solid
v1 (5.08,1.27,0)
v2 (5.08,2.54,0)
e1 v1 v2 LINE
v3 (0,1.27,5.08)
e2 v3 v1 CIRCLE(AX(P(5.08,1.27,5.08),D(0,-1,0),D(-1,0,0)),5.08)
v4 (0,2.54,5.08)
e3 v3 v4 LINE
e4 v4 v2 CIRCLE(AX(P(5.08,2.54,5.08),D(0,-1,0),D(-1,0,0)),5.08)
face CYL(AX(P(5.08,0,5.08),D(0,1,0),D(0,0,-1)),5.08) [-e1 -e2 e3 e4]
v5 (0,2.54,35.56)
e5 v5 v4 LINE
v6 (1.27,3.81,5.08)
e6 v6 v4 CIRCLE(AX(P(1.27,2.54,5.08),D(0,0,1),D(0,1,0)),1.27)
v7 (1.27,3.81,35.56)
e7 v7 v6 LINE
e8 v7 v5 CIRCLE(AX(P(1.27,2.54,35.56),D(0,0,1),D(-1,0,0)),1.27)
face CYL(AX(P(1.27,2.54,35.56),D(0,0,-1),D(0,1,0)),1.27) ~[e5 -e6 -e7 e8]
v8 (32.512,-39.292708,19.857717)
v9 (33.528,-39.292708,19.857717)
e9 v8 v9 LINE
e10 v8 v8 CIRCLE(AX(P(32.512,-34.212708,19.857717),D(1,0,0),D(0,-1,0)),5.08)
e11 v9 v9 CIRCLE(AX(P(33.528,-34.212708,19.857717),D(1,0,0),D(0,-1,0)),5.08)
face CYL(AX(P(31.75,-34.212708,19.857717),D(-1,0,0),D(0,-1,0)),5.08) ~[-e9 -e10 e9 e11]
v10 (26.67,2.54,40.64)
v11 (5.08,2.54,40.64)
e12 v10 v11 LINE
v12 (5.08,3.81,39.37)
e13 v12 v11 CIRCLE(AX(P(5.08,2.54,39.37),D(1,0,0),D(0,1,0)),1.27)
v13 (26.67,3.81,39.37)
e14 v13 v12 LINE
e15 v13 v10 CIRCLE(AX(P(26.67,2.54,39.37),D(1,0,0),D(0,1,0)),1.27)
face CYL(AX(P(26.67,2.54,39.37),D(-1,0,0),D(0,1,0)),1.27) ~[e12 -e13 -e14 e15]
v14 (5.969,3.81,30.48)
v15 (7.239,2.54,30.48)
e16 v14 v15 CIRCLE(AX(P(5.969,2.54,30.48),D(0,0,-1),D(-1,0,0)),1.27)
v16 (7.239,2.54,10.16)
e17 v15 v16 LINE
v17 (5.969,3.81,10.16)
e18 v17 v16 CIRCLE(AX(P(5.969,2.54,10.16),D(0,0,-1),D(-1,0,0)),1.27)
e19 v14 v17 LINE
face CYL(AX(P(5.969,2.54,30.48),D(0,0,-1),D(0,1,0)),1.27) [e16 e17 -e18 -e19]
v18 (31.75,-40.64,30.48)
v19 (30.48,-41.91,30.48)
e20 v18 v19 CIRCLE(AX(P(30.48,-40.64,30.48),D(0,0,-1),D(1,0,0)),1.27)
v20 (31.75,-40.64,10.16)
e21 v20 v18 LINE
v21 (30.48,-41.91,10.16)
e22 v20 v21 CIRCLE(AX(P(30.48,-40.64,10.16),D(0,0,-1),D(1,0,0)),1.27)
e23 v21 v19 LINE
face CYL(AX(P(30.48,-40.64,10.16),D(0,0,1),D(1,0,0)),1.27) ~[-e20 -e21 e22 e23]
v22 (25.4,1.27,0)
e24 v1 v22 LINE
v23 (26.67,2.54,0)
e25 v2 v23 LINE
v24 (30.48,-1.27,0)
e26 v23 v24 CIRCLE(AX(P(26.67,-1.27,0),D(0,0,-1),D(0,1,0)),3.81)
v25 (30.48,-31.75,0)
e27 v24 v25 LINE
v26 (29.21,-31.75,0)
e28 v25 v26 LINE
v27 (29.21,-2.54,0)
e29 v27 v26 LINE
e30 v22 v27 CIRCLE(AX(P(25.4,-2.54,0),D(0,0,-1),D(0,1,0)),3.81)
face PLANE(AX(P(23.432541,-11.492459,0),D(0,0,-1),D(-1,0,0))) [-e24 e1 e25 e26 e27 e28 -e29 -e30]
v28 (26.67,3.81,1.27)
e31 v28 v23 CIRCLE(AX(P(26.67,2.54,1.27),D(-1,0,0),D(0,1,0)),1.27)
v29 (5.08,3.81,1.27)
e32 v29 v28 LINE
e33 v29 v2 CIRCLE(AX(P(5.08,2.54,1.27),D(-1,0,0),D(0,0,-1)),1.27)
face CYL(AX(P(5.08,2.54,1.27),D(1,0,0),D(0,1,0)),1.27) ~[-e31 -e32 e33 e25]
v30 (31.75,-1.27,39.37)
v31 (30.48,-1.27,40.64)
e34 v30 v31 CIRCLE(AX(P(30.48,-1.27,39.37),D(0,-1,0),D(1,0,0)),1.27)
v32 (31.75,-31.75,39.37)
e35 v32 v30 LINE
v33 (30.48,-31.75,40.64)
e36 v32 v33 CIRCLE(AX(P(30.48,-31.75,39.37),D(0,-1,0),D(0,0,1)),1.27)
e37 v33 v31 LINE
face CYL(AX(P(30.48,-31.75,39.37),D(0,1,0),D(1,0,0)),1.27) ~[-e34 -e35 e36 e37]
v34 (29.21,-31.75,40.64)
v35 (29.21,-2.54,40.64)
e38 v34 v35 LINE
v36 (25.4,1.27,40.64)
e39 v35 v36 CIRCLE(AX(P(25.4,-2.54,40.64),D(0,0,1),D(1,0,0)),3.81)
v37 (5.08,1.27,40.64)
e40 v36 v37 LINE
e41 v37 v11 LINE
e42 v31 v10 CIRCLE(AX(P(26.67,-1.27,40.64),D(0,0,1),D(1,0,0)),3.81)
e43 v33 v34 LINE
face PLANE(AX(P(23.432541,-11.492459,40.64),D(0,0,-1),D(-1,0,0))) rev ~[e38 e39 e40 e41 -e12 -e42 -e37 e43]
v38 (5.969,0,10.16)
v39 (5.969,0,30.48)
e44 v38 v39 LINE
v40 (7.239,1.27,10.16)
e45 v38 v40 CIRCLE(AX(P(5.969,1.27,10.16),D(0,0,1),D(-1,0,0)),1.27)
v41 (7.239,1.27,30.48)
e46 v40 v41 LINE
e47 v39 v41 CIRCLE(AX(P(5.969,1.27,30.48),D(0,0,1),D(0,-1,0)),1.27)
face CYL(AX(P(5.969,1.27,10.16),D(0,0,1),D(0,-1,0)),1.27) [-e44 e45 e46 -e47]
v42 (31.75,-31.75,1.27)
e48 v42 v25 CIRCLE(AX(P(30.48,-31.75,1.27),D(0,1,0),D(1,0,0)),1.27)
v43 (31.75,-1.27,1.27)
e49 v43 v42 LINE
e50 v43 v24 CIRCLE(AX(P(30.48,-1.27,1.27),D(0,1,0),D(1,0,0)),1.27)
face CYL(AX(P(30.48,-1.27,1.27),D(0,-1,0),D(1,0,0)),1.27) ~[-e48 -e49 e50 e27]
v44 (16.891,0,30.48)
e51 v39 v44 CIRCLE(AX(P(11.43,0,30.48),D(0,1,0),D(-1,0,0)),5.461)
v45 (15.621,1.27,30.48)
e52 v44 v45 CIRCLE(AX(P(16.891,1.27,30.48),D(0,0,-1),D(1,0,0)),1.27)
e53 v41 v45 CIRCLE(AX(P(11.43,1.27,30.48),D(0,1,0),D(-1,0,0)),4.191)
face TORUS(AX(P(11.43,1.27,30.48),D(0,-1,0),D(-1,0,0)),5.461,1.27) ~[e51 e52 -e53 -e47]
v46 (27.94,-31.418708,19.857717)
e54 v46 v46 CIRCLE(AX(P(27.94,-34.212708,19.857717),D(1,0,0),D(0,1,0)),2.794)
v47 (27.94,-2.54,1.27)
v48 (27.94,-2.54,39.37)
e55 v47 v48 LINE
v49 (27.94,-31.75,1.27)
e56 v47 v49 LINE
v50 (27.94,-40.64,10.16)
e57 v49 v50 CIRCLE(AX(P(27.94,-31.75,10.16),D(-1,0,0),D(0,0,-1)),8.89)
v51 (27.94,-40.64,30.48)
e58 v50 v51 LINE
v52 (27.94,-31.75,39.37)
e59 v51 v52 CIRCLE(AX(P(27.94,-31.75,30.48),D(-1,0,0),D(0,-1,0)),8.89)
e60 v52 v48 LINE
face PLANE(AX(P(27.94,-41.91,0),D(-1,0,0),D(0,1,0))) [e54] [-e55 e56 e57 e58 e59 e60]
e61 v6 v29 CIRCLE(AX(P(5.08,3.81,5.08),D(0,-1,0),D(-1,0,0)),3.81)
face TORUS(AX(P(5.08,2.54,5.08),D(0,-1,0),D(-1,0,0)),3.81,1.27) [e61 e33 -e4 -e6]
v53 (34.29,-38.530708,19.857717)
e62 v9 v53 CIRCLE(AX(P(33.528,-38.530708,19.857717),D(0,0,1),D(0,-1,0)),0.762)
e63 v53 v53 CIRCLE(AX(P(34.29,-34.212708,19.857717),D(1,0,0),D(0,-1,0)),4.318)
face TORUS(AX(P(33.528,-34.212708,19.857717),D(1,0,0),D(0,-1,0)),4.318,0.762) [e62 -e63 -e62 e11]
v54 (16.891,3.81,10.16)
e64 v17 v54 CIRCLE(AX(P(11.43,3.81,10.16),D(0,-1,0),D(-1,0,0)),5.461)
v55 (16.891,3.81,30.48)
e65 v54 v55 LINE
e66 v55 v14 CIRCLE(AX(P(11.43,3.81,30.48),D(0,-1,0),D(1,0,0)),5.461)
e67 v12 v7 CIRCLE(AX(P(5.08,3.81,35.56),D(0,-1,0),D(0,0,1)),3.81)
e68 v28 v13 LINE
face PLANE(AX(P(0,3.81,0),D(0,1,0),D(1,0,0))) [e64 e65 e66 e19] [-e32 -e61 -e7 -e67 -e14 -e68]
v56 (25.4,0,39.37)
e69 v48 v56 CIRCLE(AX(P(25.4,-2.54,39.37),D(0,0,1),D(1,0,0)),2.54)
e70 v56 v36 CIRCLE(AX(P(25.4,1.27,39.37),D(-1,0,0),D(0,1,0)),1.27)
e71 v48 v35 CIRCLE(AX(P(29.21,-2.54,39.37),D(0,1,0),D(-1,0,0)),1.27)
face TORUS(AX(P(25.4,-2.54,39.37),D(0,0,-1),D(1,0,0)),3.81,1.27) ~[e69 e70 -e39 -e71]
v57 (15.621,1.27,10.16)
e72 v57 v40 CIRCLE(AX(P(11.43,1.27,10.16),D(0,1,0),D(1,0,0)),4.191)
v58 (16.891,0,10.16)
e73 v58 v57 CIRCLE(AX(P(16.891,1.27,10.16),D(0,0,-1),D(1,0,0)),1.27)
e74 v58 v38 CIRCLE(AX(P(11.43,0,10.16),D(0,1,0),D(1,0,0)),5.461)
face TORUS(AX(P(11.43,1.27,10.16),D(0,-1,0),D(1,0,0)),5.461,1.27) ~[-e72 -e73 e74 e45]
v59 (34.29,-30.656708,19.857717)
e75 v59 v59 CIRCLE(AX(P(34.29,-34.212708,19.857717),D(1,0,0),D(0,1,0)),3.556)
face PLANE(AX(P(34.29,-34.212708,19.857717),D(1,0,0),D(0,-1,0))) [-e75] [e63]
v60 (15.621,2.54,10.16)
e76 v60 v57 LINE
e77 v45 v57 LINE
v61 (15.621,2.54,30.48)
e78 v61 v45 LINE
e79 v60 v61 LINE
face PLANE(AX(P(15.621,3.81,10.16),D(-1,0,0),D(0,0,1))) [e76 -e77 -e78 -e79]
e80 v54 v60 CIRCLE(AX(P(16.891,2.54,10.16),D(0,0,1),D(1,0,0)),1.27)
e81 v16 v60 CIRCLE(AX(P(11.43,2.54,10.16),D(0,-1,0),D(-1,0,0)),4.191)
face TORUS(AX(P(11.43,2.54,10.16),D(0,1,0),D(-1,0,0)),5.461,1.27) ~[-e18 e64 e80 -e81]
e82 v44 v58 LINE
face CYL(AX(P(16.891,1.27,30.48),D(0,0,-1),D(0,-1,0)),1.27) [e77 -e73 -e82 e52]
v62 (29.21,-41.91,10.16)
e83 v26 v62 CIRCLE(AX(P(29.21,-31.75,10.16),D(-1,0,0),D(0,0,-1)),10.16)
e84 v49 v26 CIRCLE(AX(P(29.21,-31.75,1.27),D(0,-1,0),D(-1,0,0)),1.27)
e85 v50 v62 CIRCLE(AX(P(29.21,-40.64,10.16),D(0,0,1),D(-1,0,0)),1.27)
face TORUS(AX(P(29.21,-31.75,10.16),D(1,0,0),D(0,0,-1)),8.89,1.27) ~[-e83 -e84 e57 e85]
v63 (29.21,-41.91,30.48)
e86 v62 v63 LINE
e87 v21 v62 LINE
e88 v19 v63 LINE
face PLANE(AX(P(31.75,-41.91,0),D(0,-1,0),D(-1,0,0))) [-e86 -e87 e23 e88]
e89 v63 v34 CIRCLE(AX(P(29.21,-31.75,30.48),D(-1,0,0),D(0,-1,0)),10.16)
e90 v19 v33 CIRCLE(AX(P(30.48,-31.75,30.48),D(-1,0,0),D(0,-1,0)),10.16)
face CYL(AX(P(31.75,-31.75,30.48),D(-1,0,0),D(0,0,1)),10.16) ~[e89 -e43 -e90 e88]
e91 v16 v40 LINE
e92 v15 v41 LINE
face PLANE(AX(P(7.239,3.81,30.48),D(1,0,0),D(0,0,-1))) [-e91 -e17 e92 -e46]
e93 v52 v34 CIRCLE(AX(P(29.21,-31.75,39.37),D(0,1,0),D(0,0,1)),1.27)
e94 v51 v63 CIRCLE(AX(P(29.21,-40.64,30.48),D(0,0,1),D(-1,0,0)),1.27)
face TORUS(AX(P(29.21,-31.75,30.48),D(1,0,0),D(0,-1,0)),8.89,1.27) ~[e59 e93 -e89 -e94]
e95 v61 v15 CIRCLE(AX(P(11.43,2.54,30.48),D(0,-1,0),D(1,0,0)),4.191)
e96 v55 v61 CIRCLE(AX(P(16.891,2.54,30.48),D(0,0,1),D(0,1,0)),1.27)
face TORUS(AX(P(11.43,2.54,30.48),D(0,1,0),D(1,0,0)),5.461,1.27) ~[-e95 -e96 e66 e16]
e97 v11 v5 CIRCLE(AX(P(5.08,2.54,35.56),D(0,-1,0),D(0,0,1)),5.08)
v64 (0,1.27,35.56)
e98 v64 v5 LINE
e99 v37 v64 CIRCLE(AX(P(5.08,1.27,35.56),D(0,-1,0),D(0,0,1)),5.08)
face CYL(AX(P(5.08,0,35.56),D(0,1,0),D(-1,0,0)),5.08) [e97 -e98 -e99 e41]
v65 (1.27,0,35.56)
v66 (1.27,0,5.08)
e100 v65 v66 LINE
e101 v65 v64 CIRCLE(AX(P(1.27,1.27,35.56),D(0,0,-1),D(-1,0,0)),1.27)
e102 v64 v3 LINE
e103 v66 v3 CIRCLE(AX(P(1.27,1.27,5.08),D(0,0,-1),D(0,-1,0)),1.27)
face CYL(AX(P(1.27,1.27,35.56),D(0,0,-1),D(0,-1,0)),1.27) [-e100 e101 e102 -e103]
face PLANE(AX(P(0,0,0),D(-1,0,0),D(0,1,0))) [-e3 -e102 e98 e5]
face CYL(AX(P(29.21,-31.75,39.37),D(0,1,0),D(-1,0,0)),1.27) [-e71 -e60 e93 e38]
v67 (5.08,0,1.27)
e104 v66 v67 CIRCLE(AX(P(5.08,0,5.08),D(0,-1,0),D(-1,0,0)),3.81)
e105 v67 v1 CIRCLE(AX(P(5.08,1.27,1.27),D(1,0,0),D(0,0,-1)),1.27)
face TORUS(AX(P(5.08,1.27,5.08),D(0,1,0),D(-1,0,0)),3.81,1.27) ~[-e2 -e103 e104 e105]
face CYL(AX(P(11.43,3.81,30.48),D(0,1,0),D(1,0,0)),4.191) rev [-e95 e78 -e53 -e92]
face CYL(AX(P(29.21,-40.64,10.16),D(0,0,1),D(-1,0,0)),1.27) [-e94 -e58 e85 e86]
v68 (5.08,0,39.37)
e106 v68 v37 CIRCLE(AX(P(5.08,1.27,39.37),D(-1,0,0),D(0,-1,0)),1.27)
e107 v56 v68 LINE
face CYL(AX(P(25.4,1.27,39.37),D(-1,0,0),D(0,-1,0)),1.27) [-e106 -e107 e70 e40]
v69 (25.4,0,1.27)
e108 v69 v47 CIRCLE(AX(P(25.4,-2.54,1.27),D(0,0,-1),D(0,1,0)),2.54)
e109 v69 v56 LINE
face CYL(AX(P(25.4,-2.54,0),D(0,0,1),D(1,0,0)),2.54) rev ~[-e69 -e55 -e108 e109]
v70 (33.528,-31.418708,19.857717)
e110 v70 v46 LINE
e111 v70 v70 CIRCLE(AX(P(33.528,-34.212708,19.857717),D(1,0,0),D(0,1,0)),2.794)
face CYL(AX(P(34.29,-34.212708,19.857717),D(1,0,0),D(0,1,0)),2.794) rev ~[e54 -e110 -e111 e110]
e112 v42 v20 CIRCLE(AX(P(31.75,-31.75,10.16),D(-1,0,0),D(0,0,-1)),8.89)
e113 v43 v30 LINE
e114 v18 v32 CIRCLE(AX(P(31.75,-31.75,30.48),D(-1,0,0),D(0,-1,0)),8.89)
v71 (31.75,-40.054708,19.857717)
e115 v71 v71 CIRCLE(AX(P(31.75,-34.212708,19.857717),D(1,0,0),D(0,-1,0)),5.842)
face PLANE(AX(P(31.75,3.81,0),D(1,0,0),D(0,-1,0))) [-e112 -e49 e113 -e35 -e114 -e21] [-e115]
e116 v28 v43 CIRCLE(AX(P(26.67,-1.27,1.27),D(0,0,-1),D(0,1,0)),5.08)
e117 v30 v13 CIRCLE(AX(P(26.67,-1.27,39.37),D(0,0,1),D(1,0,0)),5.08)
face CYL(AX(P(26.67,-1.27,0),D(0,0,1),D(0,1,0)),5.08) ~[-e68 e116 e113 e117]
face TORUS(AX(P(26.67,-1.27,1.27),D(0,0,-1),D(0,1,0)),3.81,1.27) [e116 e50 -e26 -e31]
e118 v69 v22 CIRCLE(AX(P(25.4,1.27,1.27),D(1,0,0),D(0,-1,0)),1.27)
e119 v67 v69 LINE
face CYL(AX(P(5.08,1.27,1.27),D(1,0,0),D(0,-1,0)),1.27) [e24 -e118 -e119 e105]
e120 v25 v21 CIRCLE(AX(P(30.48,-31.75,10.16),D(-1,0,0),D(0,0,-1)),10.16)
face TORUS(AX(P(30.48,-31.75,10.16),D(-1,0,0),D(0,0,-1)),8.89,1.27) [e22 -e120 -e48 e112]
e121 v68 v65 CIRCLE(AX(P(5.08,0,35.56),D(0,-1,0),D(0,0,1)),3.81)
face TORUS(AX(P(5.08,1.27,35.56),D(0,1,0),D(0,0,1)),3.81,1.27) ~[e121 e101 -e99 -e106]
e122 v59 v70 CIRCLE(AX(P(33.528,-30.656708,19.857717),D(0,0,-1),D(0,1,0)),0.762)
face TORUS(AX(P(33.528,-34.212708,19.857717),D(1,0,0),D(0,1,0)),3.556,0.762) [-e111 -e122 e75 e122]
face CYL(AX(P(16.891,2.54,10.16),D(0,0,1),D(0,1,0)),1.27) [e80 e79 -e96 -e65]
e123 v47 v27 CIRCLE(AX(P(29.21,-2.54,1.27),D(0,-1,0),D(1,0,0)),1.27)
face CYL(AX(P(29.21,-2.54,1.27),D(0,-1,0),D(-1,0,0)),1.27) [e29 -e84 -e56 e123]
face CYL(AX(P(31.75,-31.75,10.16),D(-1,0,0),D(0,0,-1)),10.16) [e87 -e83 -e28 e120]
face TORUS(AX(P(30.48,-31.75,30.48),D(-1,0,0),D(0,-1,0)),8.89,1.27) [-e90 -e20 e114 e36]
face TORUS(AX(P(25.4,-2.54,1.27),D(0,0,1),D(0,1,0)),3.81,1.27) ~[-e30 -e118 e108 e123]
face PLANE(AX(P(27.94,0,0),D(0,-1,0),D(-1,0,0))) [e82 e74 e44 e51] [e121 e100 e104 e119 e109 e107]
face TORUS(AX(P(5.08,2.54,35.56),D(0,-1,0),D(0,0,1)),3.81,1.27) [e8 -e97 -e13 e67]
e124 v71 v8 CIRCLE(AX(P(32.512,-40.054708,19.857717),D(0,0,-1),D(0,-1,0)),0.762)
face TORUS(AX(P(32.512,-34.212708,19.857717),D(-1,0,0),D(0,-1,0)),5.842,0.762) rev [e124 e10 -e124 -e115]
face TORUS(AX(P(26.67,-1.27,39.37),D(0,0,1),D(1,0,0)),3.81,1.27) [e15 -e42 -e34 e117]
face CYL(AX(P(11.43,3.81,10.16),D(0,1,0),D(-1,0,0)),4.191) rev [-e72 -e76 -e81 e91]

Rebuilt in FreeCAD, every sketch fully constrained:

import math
import FreeCAD as App
import Part
import Sketcher

V = App.Vector
Q = App.Units.Quantity


def edges_at(feature, points):
    """Names of the edges that pass closest to the given points."""
    edges = feature.Shape.Edges
    near = lambda p: min(range(len(edges)), key=lambda i: edges[i].distToShape(Part.Vertex(*p))[0])
    return sorted({f"Edge{near(p) + 1}" for p in points})


def add_polygon(sketch, points):
    """Adds a closed chain of lines whose ends are joined by coincident constraints."""
    first, n = sketch.GeometryCount, len(points)
    for a, b in zip(points, points[1:] + points[:1]):
        sketch.addGeometry(Part.LineSegment(App.Vector(*a, 0), App.Vector(*b, 0)), False)
    for i in range(n):
        sketch.addConstraint(Sketcher.Constraint("Coincident", first + i, 2, first + (i + 1) % n, 1))

doc = App.newDocument("Part")
body = doc.addObject("PartDesign::Body", "Body")

sketch1 = body.newObject("Sketcher::SketchObject", "Sketch")
sketch1.AttachmentSupport = (doc.getObject("XY_Plane"), [""])
sketch1.MapMode = "FlatFace"
add_polygon(sketch1, [(0, 3.8), (0, 0), (27.9, 0), (27.9, -41.9), (31.8, -41.9), (31.8, 3.8)])
sketch1.addConstraint(Sketcher.Constraint("Vertical", 0))
sketch1.addConstraint(Sketcher.Constraint("Horizontal", 1))
sketch1.addConstraint(Sketcher.Constraint("Vertical", 2))
sketch1.addConstraint(Sketcher.Constraint("Horizontal", 3))
sketch1.addConstraint(Sketcher.Constraint("Vertical", 4))
sketch1.addConstraint(Sketcher.Constraint("Horizontal", 5))
sketch1.addConstraint(Sketcher.Constraint("Coincident", 0, 2, -1, 1))
sketch1.addConstraint(Sketcher.Constraint("Equal", 3, 0))
sketch1.addConstraint(Sketcher.Constraint("DistanceX", 1, 1, 1, 2, Q("1.1 in")))
sketch1.addConstraint(Sketcher.Constraint("DistanceY", 4, 1, 4, 2, Q("1.8 in")))
sketch1.addConstraint(Sketcher.Constraint("DistanceX", 3, 1, 3, 2, Q("0.15 in")))
pad1 = body.newObject("PartDesign::Pad", "Pad")
pad1.Profile = sketch1
pad1.Length = Q("1.6 in")

sketch2 = body.newObject("Sketcher::SketchObject", "Sketch001")
sketch2.AttachmentSupport = (doc.getObject("XZ_Plane"), [""])
sketch2.MapMode = "FlatFace"
sketch2.AttachmentOffset = App.Placement(V(0, 0, -0.15 * 25.4), App.Rotation())
sketch2.addGeometry(Part.LineSegment(V(15.6, 30.5, 0), V(15.6, 10.2, 0)), False)
sketch2.addGeometry(Part.ArcOfCircle(Part.Circle(V(11.4, 10.2, 0), V(0, 0, 1), 4.2), math.radians(180), math.radians(360)), False)
sketch2.addGeometry(Part.LineSegment(V(7.2, 10.2, 0), V(7.2, 30.5, 0)), False)
sketch2.addGeometry(Part.ArcOfCircle(Part.Circle(V(11.4, 30.5, 0), V(0, 0, 1), 4.2), math.radians(0), math.radians(180)), False)
sketch2.addConstraint(Sketcher.Constraint("Tangent", 0, 2, 1, 2))
sketch2.addConstraint(Sketcher.Constraint("Tangent", 1, 1, 2, 1))
sketch2.addConstraint(Sketcher.Constraint("Tangent", 2, 2, 3, 2))
sketch2.addConstraint(Sketcher.Constraint("Tangent", 3, 1, 0, 1))
sketch2.addConstraint(Sketcher.Constraint("Vertical", 0))
sketch2.addConstraint(Sketcher.Constraint("Vertical", 2))
sketch2.addConstraint(Sketcher.Constraint("DistanceY", 0, 2, 0, 1, Q("0.8 in")))
sketch2.addConstraint(Sketcher.Constraint("Radius", 1, Q("0.165 in")))
sketch2.addConstraint(Sketcher.Constraint("DistanceY", -1, 1, 1, 3, Q("0.4 in")))
sketch2.addConstraint(Sketcher.Constraint("DistanceX", -1, 1, 1, 3, Q("0.45 in")))
pocket1 = body.newObject("PartDesign::Pocket", "Pocket")
pocket1.Profile = sketch2
pocket1.Type = "ThroughAll"
pocket1.Reversed = True
doc.recompute()

fillet = body.newObject("PartDesign::Fillet", "Fillet")
fillet.Base = (pocket1, edges_at(pocket1, [(29.845, -41.91, 40.64), (29.845, -41.91, 0)]))
fillet.Radius = Q("0.4 in")
doc.recompute()

fillet2 = body.newObject("PartDesign::Fillet", "Fillet001")
fillet2.Base = (fillet, edges_at(fillet, [(27.94, 0, 20.32)]))
fillet2.Radius = Q("0.1 in")
doc.recompute()

fillet3 = body.newObject("PartDesign::Fillet", "Fillet002")
fillet3.Base = (fillet2, edges_at(fillet2, [(0, 1.905, 40.64), (0, 1.905, 0)]))
fillet3.Radius = Q("0.2 in")
doc.recompute()

fillet4 = body.newObject("PartDesign::Fillet", "Fillet003")
fillet4.Base = (fillet3, edges_at(fillet3, [(31.75, 3.81, 20.32)]))
fillet4.Radius = Q("0.2 in")
doc.recompute()

fillet5 = body.newObject("PartDesign::Fillet", "Fillet004")
fillet5.Base = (fillet4, edges_at(fillet4, [
    (11.43, 0, 5.969),
    (15.621, 0, 20.32),
    (11.43, 0, 34.671),
    (7.239, 0, 20.32),
    (11.43, 3.81, 5.969),
    (7.239, 3.81, 20.32),
    (11.43, 3.81, 34.671),
    (15.621, 3.81, 20.32),
]))
fillet5.Radius = Q("0.05 in")
doc.recompute()

fillet6 = body.newObject("PartDesign::Fillet", "Fillet005")
fillet6.Base = (fillet5, edges_at(fillet5, [
    (31.75, -41.91, 20.32),
    (27.94, -41.91, 20.32),
    (31.75, -16.51, 0),
    (31.75, -16.51, 40.64),
    (31.75, -38.934, 37.664),
    (31.75, -38.934, 2.976),
    (27.94, -38.934, 37.664),
    (27.94, -38.934, 2.976),
    (27.94, -17.145, 0),
    (27.94, -17.145, 40.64),
    (27.196, -0.744, 0),
    (27.196, -0.744, 40.64),
    (15.24, 0, 40.64),
    (15.24, 0, 0),
    (0, 0, 20.32),
    (1.488, 0, 1.488),
    (1.488, 0, 39.152),
    (0, 3.81, 20.32),
    (1.488, 3.81, 1.488),
    (1.488, 3.81, 39.152),
    (15.875, 3.81, 40.64),
    (15.875, 3.81, 0),
    (30.262, 2.322, 0),
    (30.262, 2.322, 40.64),
]))
fillet6.Radius = Q("0.05 in")

sketch3 = body.newObject("Sketcher::SketchObject", "Sketch002")
sketch3.AttachmentSupport = (doc.getObject("YZ_Plane"), [""])
sketch3.MapMode = "FlatFace"
sketch3.AttachmentOffset = App.Placement(V(0, 0, 1.25 * 25.4), App.Rotation())
sketch3.addGeometry(Part.Circle(V(-34, 20, 0), V(0, 0, 1), 5), False)
sketch3.addConstraint(Sketcher.Constraint("Diameter", 0, Q("0.4 in")))
sketch3.addConstraint(Sketcher.Constraint("DistanceY", -1, 1, 0, 3, Q("0.7817999 in")))
sketch3.addConstraint(Sketcher.Constraint("DistanceX", 0, 3, -1, 1, Q("34.212708 mm")))
pad2 = body.newObject("PartDesign::Pad", "Pad001")
pad2.Profile = sketch3
pad2.Length = Q("0.1 in")

sketch4 = body.newObject("Sketcher::SketchObject", "Sketch003")
sketch4.AttachmentSupport = (doc.getObject("YZ_Plane"), [""])
sketch4.MapMode = "FlatFace"
sketch4.AttachmentOffset = App.Placement(V(0, 0, 1.35 * 25.4), App.Rotation())
sketch4.addGeometry(Part.Circle(V(-34.2, 19.9, 0), V(0, 0, 1), 2.8), False)
sketch4.addConstraint(Sketcher.Constraint("Diameter", 0, Q("0.22 in")))
sketch4.addConstraint(Sketcher.Constraint("DistanceY", -1, 1, 0, 3, Q("0.7817999 in")))
sketch4.addConstraint(Sketcher.Constraint("DistanceX", 0, 3, -1, 1, Q("34.212708 mm")))
pocket2 = body.newObject("PartDesign::Pocket", "Pocket001")
pocket2.Profile = sketch4
pocket2.Type = "ThroughAll"
doc.recompute()

fillet7 = body.newObject("PartDesign::Fillet", "Fillet006")
fillet7.Base = (pocket2, edges_at(pocket2, [(31.75, -29.133, 19.858), (34.29, -29.133, 19.858), (34.29, -37.007, 19.858)]))
fillet7.Radius = Q("0.03 in")

doc.recompute()
